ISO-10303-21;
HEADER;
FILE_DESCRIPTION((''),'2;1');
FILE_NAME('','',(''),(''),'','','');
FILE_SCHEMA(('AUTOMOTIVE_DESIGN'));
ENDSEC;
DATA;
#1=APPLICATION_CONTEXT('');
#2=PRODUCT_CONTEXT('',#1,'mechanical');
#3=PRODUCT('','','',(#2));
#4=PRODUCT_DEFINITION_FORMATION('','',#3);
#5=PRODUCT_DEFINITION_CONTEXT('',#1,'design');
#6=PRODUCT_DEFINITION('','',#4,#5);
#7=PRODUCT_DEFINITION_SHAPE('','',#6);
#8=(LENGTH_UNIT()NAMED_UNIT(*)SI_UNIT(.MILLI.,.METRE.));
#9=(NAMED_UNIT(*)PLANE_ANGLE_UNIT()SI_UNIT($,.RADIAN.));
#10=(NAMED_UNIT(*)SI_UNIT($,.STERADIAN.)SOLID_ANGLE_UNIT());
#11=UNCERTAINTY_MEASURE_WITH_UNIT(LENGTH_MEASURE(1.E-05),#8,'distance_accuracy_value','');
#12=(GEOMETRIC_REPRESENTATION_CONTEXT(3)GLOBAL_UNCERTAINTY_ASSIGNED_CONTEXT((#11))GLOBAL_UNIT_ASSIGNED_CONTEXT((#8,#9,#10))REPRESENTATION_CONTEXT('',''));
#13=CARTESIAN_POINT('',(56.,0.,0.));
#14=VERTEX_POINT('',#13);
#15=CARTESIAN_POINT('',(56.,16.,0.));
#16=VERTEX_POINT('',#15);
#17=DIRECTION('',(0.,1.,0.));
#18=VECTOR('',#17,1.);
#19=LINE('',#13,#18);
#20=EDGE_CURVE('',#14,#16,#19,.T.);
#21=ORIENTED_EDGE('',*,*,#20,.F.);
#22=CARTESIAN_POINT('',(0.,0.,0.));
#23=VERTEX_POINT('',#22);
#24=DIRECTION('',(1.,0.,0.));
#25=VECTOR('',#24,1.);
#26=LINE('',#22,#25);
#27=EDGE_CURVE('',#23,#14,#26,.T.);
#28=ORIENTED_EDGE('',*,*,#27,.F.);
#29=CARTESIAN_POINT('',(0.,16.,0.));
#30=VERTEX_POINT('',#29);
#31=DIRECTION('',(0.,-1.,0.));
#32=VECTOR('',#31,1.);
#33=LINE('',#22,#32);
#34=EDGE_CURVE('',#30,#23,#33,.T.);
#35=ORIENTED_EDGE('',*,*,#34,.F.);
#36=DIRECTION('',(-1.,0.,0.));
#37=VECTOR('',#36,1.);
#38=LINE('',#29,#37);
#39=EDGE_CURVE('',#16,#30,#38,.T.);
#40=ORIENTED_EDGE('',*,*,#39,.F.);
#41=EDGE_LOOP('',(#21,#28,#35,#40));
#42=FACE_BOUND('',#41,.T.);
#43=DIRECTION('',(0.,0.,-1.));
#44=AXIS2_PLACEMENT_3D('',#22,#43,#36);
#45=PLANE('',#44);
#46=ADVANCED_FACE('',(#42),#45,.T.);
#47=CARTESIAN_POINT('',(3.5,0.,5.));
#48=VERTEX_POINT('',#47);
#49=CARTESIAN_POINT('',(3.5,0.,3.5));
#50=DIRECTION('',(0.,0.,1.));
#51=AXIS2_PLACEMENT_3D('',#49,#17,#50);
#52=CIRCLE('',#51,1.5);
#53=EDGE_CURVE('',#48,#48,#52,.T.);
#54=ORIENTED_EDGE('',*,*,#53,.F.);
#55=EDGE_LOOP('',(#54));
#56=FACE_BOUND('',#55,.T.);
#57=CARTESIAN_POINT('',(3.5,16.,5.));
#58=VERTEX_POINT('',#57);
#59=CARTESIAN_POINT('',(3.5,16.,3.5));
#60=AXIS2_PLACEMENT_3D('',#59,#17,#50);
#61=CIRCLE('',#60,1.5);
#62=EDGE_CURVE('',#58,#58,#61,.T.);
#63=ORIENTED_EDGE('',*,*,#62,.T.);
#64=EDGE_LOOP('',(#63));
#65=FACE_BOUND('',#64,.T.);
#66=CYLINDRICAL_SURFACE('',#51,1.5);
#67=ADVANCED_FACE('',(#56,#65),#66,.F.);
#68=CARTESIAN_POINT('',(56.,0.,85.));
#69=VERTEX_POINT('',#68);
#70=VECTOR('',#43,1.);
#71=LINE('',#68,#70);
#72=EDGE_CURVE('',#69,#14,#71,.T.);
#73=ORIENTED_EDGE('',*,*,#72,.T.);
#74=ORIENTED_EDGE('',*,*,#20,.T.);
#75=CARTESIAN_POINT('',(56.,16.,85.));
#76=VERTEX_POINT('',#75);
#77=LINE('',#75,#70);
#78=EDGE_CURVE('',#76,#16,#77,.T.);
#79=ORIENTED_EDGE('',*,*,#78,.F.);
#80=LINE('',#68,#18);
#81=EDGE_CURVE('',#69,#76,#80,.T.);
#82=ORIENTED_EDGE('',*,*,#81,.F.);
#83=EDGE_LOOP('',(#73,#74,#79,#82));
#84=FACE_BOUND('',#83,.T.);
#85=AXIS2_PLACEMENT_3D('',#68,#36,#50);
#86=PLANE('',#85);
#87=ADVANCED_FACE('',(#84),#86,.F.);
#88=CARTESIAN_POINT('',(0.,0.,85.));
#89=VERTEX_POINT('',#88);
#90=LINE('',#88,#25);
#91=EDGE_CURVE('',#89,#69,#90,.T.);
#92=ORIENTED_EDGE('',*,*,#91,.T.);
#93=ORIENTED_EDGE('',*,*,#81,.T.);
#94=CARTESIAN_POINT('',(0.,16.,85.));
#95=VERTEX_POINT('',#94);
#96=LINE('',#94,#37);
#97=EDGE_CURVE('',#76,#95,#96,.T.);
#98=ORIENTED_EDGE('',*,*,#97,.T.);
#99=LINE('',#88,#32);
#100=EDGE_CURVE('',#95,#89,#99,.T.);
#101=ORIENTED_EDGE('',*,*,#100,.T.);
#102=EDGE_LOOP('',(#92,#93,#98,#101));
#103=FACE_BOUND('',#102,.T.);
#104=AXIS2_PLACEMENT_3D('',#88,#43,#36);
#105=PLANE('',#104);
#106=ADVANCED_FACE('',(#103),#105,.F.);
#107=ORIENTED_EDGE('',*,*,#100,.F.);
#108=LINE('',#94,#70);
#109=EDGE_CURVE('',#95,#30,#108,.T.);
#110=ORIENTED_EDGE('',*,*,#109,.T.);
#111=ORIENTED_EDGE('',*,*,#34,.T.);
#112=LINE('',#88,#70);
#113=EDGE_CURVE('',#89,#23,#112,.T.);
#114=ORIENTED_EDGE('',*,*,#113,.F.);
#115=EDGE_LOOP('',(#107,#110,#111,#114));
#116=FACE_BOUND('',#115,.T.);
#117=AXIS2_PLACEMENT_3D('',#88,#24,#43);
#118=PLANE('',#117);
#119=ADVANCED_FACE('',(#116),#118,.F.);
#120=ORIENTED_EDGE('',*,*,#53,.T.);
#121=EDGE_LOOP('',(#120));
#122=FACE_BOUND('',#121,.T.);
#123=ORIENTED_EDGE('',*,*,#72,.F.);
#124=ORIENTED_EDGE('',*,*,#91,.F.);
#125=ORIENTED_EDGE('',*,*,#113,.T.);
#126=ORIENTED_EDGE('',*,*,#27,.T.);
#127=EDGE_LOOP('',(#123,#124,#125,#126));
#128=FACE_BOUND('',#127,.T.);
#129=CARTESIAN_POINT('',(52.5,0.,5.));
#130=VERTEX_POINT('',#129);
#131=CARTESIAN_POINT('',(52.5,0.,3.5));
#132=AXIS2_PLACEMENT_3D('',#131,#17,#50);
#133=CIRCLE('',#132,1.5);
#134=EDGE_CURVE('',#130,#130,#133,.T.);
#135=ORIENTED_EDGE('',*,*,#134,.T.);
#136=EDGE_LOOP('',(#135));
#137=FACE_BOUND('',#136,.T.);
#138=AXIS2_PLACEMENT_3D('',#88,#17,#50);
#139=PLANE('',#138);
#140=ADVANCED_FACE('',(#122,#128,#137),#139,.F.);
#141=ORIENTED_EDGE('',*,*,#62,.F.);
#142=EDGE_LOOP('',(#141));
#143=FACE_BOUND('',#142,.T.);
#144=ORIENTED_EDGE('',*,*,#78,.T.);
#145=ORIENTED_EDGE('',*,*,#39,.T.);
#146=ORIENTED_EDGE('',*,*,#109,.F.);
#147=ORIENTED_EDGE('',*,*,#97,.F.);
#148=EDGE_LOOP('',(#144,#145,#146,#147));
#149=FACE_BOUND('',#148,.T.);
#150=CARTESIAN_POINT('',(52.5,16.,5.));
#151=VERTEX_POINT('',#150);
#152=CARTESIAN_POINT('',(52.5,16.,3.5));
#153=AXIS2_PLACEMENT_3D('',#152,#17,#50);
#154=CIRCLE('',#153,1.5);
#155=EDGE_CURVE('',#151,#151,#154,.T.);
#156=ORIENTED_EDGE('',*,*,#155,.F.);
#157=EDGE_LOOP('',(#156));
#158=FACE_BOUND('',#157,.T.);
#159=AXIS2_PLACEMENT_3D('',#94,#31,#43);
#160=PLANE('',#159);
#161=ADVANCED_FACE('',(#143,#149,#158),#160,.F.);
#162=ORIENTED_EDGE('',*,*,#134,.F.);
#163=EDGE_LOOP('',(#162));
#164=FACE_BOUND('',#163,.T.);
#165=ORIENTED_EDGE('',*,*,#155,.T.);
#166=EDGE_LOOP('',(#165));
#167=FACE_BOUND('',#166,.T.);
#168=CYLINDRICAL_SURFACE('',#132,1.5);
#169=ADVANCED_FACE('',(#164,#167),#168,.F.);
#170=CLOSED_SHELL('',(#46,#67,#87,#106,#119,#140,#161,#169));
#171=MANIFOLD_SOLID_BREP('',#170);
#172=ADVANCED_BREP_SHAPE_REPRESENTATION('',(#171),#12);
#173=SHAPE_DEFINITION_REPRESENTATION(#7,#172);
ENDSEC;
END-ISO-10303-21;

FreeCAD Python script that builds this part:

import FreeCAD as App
import Part
import Sketcher
from FreeCAD import Vector


def add_polygon(sketch, points):
    """Adds a closed chain of lines whose ends are joined by coincident constraints."""
    first, n = sketch.GeometryCount, len(points)
    for a, b in zip(points, points[1:] + points[:1]):
        sketch.addGeometry(Part.LineSegment(App.Vector(*a, 0), App.Vector(*b, 0)), False)
    for i in range(n):
        sketch.addConstraint(Sketcher.Constraint("Coincident", first + i, 2, first + (i + 1) % n, 1))

doc = App.newDocument("Part")
body = doc.addObject("PartDesign::Body", "Body")

sketch1 = body.newObject("Sketcher::SketchObject", "Sketch")
sketch1.AttachmentSupport = (doc.getObject("XY_Plane"), [""])
sketch1.MapMode = "FlatFace"
add_polygon(sketch1, [(0, 16), (0, 0), (56, 0), (56, 16)])
sketch1.addConstraint(Sketcher.Constraint("Vertical", 0))
sketch1.addConstraint(Sketcher.Constraint("Horizontal", 1))
sketch1.addConstraint(Sketcher.Constraint("Vertical", 2))
sketch1.addConstraint(Sketcher.Constraint("Horizontal", 3))
sketch1.addConstraint(Sketcher.Constraint("Coincident", 0, 2, -1, 1))
sketch1.addConstraint(Sketcher.Constraint("DistanceX", 1, 1, 1, 2, 56.0))
sketch1.addConstraint(Sketcher.Constraint("DistanceY", 0, 2, 0, 1, 16.0))
pad1 = body.newObject("PartDesign::Pad", "Pad")
pad1.Profile = sketch1
pad1.Length = 85

sketch2 = body.newObject("Sketcher::SketchObject", "Sketch001")
sketch2.AttachmentSupport = (doc.getObject("XZ_Plane"), [""])
sketch2.MapMode = "FlatFace"
sketch2.AttachmentOffset = App.Placement(Vector(0, 0, -16), App.Rotation())
sketch2.addGeometry(Part.Circle(Vector(3.5, 3.5, 0), Vector(0, 0, 1), 1.5), False)
sketch2.addGeometry(Part.Circle(Vector(52.5, 3.5, 0), Vector(0, 0, 1), 1.5), False)
sketch2.addConstraint(Sketcher.Constraint("Equal", 0, 1))
sketch2.addConstraint(Sketcher.Constraint("Horizontal", 0, 3, 1, 3))
sketch2.addConstraint(Sketcher.Constraint("Diameter", 0, 3.0))
sketch2.addConstraint(Sketcher.Constraint("DistanceX", 0, 3, 1, 3, 49.0))
sketch2.addConstraint(Sketcher.Constraint("DistanceX", -1, 1, 0, 3, 3.5))
sketch2.addConstraint(Sketcher.Constraint("DistanceY", -1, 1, 0, 3, 3.5))
pocket1 = body.newObject("PartDesign::Pocket", "Pocket")
pocket1.Profile = sketch2
pocket1.Type = "ThroughAll"
pocket1.Reversed = True

doc.recompute()
